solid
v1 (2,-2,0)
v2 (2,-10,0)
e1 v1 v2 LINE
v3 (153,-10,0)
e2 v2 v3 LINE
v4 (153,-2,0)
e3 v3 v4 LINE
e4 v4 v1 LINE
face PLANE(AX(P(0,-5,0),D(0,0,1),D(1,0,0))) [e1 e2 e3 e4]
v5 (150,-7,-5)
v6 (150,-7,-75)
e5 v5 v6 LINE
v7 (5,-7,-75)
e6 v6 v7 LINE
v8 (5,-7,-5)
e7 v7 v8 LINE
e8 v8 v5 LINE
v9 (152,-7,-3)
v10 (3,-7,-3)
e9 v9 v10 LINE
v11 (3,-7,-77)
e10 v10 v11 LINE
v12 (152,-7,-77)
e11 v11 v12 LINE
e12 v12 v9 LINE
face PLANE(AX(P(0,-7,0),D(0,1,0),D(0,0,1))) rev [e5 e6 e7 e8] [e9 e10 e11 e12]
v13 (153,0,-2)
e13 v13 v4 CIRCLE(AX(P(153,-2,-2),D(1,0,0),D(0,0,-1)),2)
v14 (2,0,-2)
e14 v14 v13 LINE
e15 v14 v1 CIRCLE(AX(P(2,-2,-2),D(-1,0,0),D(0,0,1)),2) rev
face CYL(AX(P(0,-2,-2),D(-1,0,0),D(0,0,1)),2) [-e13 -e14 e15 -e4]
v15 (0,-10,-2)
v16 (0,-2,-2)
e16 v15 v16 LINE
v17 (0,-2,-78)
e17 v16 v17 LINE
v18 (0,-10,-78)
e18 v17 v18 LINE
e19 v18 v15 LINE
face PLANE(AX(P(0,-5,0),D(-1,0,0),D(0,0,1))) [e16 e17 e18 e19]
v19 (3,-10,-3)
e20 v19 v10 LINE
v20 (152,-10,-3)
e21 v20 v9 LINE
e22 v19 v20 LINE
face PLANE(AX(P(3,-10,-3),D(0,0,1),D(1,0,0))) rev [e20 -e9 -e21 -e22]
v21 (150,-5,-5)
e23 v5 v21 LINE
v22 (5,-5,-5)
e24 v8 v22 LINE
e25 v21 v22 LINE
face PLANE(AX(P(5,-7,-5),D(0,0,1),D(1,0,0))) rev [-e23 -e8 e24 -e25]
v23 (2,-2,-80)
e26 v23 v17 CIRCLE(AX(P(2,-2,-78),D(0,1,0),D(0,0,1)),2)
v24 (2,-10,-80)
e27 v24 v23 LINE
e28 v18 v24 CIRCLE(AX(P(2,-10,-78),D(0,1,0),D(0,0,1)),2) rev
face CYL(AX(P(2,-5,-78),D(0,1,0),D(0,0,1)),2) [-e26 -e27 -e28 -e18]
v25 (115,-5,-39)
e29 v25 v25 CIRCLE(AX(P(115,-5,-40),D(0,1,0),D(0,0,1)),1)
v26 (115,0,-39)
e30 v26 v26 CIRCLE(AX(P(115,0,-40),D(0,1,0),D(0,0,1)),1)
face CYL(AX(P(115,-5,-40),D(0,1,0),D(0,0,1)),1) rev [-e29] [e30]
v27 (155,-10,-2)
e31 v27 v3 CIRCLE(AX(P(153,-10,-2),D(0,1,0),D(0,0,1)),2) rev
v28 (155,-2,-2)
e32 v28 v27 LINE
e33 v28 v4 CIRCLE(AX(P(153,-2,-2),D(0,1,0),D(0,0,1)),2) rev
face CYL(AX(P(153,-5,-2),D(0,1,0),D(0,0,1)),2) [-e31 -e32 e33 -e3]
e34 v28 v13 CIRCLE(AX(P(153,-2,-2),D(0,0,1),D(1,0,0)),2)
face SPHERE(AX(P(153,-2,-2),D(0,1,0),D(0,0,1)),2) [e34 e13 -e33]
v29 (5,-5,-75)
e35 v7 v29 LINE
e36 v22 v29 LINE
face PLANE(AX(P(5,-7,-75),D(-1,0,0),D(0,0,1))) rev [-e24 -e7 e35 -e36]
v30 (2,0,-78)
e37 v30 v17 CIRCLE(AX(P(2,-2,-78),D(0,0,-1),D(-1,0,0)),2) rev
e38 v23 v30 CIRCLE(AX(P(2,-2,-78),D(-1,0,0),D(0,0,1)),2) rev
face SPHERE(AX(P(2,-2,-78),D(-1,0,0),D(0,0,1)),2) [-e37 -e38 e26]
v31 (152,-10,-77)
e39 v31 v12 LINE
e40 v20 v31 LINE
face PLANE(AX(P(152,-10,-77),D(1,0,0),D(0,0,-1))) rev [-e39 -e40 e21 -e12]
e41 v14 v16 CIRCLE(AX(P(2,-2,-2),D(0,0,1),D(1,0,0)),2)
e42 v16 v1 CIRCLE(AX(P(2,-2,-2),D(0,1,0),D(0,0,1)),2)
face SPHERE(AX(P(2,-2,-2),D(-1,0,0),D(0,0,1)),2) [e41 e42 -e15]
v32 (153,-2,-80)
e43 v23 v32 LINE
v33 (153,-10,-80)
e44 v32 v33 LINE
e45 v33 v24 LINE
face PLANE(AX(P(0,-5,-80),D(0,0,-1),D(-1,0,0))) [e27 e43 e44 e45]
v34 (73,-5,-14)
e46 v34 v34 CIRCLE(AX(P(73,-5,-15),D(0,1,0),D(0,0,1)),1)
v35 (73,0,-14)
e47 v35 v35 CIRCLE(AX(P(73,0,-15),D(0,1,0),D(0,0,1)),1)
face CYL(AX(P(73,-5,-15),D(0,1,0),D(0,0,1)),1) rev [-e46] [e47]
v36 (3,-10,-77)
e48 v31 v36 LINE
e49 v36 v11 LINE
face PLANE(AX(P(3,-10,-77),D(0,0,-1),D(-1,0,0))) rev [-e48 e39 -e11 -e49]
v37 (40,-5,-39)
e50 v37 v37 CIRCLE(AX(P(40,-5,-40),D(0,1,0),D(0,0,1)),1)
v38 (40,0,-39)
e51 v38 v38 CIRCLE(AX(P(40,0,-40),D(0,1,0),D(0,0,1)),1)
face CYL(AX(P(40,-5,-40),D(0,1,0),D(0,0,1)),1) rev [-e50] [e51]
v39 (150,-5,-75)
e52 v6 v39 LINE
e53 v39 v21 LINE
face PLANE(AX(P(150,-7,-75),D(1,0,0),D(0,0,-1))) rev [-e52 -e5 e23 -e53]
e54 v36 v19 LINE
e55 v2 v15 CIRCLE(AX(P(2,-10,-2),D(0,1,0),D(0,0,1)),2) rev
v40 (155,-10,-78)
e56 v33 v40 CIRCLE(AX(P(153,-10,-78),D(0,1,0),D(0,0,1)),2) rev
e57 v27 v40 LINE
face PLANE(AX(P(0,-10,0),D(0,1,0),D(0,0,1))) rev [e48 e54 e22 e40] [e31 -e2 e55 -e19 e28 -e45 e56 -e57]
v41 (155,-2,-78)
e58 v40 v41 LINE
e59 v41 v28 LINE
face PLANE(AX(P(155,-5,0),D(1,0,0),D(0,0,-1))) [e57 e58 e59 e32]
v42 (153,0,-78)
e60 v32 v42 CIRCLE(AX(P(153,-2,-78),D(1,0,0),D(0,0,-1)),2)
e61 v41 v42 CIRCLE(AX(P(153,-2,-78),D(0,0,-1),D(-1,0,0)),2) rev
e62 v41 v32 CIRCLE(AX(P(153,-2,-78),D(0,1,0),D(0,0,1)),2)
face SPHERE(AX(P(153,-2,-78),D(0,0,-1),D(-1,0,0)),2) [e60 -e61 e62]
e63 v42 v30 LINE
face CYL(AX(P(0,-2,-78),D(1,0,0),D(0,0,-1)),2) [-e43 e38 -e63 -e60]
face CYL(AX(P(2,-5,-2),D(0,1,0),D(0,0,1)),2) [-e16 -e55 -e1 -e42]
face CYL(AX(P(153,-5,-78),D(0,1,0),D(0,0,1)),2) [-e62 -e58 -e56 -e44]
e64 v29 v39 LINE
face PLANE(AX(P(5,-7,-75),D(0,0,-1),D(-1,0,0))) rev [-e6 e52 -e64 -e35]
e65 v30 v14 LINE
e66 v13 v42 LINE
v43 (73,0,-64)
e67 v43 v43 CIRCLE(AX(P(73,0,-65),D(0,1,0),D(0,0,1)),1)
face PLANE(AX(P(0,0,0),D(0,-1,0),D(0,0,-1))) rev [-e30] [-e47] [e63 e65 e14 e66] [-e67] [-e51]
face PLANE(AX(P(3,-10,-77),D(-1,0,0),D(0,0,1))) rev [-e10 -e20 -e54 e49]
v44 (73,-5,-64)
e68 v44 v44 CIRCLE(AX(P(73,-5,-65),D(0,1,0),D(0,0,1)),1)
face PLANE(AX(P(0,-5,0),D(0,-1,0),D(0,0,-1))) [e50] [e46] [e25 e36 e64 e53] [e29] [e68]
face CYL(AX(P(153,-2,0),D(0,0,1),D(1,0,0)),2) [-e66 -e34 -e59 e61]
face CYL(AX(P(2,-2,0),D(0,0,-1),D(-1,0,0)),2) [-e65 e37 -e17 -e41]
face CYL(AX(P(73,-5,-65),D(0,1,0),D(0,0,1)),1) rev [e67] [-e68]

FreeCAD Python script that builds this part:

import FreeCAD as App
import Part
import Sketcher

V = App.Vector
Q = App.Units.Quantity


def edges_at(feature, points):
    """Names of the edges that pass closest to the given points."""
    edges = feature.Shape.Edges
    near = lambda p: min(range(len(edges)), key=lambda i: edges[i].distToShape(Part.Vertex(*p))[0])
    return sorted({f"Edge{near(p) + 1}" for p in points})

doc = App.newDocument("Part")
body = doc.addObject("PartDesign::Body", "Body")

# Sketch on XZ plane
sketch1 = doc.addObject("Sketcher::SketchObject", "Sketch")
body.addObject(sketch1)
sketch1.AttachmentSupport = (doc.XZ_Plane, [""])
sketch1.MapMode = "FlatFace"
sketch1.addGeometry(Part.LineSegment(V(0, -80, 0), V(0, 0, 0)), False)
sketch1.addGeometry(Part.LineSegment(V(0, 0, 0), V(155, 0, 0)), False)
sketch1.addGeometry(Part.LineSegment(V(155, 0, 0), V(155, -80, 0)), False)
sketch1.addGeometry(Part.LineSegment(V(155, -80, 0), V(0, -80, 0)), False)
sketch1.addGeometry(Part.Circle(V(73, -15, 0), V(0, 0, 1), 1), False)
sketch1.addGeometry(Part.Circle(V(40, -40, 0), V(0, 0, 1), 1), False)
sketch1.addGeometry(Part.Circle(V(73, -65, 0), V(0, 0, 1), 1), False)
sketch1.addGeometry(Part.Circle(V(115, -40, 0), V(0, 0, 1), 1), False)
sketch1.addConstraint(Sketcher.Constraint("Coincident", 0, 2, 1, 1))
sketch1.addConstraint(Sketcher.Constraint("Coincident", 1, 2, 2, 1))
sketch1.addConstraint(Sketcher.Constraint("Coincident", 2, 2, 3, 1))
sketch1.addConstraint(Sketcher.Constraint("Coincident", 3, 2, 0, 1))
sketch1.addConstraint(Sketcher.Constraint("Vertical", 0))
sketch1.addConstraint(Sketcher.Constraint("Horizontal", 1))
sketch1.addConstraint(Sketcher.Constraint("Vertical", 2))
sketch1.addConstraint(Sketcher.Constraint("Horizontal", 3))
sketch1.addConstraint(Sketcher.Constraint("Coincident", 0, 2, -1, 1))
sketch1.addConstraint(Sketcher.Constraint("Equal", 4, 5))
sketch1.addConstraint(Sketcher.Constraint("Equal", 5, 6))
sketch1.addConstraint(Sketcher.Constraint("Equal", 6, 7))
sketch1.addConstraint(Sketcher.Constraint("Horizontal", 5, 3, 7, 3))
sketch1.addConstraint(Sketcher.Constraint("Vertical", 4, 3, 6, 3))
sketch1.addConstraint(Sketcher.Constraint("Diameter", 4, Q("2 mm")))
sketch1.addConstraint(Sketcher.Constraint("DistanceX", 1, 1, 1, 2, Q("155 mm")))
sketch1.addConstraint(Sketcher.Constraint("DistanceY", 0, 1, 0, 2, Q("80 mm")))
sketch1.addConstraint(Sketcher.Constraint("DistanceX", -1, 1, 4, 3, Q("73 mm")))
sketch1.addConstraint(Sketcher.Constraint("DistanceY", 4, 3, -1, 1, Q("15 mm")))
sketch1.addConstraint(Sketcher.Constraint("DistanceX", -1, 1, 5, 3, Q("40 mm")))
sketch1.addConstraint(Sketcher.Constraint("DistanceY", 5, 3, -1, 1, Q("40 mm")))
sketch1.addConstraint(Sketcher.Constraint("DistanceY", 6, 3, -1, 1, Q("65 mm")))
sketch1.addConstraint(Sketcher.Constraint("DistanceX", -1, 1, 7, 3, Q("115 mm")))
pad1 = doc.addObject("PartDesign::Pad", "Pad")
body.addObject(pad1)
pad1.Profile = sketch1
pad1.Length = 5

# Sketch on XZ plane
sketch2 = doc.addObject("Sketcher::SketchObject", "Sketch001")
body.addObject(sketch2)
sketch2.AttachmentSupport = (doc.XZ_Plane, [""])
sketch2.MapMode = "FlatFace"
sketch2.addGeometry(Part.LineSegment(V(0, -80, 0), V(0, 0, 0)), False)
sketch2.addGeometry(Part.LineSegment(V(0, 0, 0), V(155, 0, 0)), False)
sketch2.addGeometry(Part.LineSegment(V(155, 0, 0), V(155, -80, 0)), False)
sketch2.addGeometry(Part.LineSegment(V(155, -80, 0), V(0, -80, 0)), False)
sketch2.addGeometry(Part.LineSegment(V(152, -3, 0), V(3, -3, 0)), False)
sketch2.addGeometry(Part.LineSegment(V(3, -3, 0), V(3, -77, 0)), False)
sketch2.addGeometry(Part.LineSegment(V(3, -77, 0), V(152, -77, 0)), False)
sketch2.addGeometry(Part.LineSegment(V(152, -77, 0), V(152, -3, 0)), False)
sketch2.addConstraint(Sketcher.Constraint("Coincident", 0, 2, 1, 1))
sketch2.addConstraint(Sketcher.Constraint("Coincident", 1, 2, 2, 1))
sketch2.addConstraint(Sketcher.Constraint("Coincident", 2, 2, 3, 1))
sketch2.addConstraint(Sketcher.Constraint("Coincident", 3, 2, 0, 1))
sketch2.addConstraint(Sketcher.Constraint("Coincident", 4, 2, 5, 1))
sketch2.addConstraint(Sketcher.Constraint("Coincident", 5, 2, 6, 1))
sketch2.addConstraint(Sketcher.Constraint("Coincident", 6, 2, 7, 1))
sketch2.addConstraint(Sketcher.Constraint("Coincident", 7, 2, 4, 1))
sketch2.addConstraint(Sketcher.Constraint("Vertical", 0))
sketch2.addConstraint(Sketcher.Constraint("Horizontal", 1))
sketch2.addConstraint(Sketcher.Constraint("Vertical", 2))
sketch2.addConstraint(Sketcher.Constraint("Horizontal", 3))
sketch2.addConstraint(Sketcher.Constraint("Horizontal", 4))
sketch2.addConstraint(Sketcher.Constraint("Vertical", 5))
sketch2.addConstraint(Sketcher.Constraint("Horizontal", 6))
sketch2.addConstraint(Sketcher.Constraint("Vertical", 7))
sketch2.addConstraint(Sketcher.Constraint("Coincident", 0, 2, -1, 1))
sketch2.addConstraint(Sketcher.Constraint("DistanceX", 1, 1, 1, 2, Q("155 mm")))
sketch2.addConstraint(Sketcher.Constraint("DistanceX", 4, 2, 4, 1, Q("149 mm")))
sketch2.addConstraint(Sketcher.Constraint("DistanceY", 0, 1, 0, 2, Q("80 mm")))
sketch2.addConstraint(Sketcher.Constraint("DistanceY", 5, 2, 5, 1, Q("74 mm")))
sketch2.addConstraint(Sketcher.Constraint("DistanceX", -1, 1, 4, 2, Q("3 mm")))
sketch2.addConstraint(Sketcher.Constraint("DistanceY", 4, 2, -1, 1, Q("3 mm")))
pad2 = doc.addObject("PartDesign::Pad", "Pad001")
body.addObject(pad2)
pad2.Profile = sketch2
pad2.Length = 10

# Sketch on XZ plane
sketch3 = doc.addObject("Sketcher::SketchObject", "Sketch002")
body.addObject(sketch3)
sketch3.AttachmentSupport = (doc.XZ_Plane, [""])
sketch3.MapMode = "FlatFace"
sketch3.addGeometry(Part.LineSegment(V(0, -80, 0), V(0, 0, 0)), False)
sketch3.addGeometry(Part.LineSegment(V(0, 0, 0), V(155, 0, 0)), False)
sketch3.addGeometry(Part.LineSegment(V(155, 0, 0), V(155, -80, 0)), False)
sketch3.addGeometry(Part.LineSegment(V(155, -80, 0), V(0, -80, 0)), False)
sketch3.addGeometry(Part.LineSegment(V(150, -5, 0), V(5, -5, 0)), False)
sketch3.addGeometry(Part.LineSegment(V(5, -5, 0), V(5, -75, 0)), False)
sketch3.addGeometry(Part.LineSegment(V(5, -75, 0), V(150, -75, 0)), False)
sketch3.addGeometry(Part.LineSegment(V(150, -75, 0), V(150, -5, 0)), False)
sketch3.addConstraint(Sketcher.Constraint("Coincident", 0, 2, 1, 1))
sketch3.addConstraint(Sketcher.Constraint("Coincident", 1, 2, 2, 1))
sketch3.addConstraint(Sketcher.Constraint("Coincident", 2, 2, 3, 1))
sketch3.addConstraint(Sketcher.Constraint("Coincident", 3, 2, 0, 1))
sketch3.addConstraint(Sketcher.Constraint("Coincident", 4, 2, 5, 1))
sketch3.addConstraint(Sketcher.Constraint("Coincident", 5, 2, 6, 1))
sketch3.addConstraint(Sketcher.Constraint("Coincident", 6, 2, 7, 1))
sketch3.addConstraint(Sketcher.Constraint("Coincident", 7, 2, 4, 1))
sketch3.addConstraint(Sketcher.Constraint("Vertical", 0))
sketch3.addConstraint(Sketcher.Constraint("Horizontal", 1))
sketch3.addConstraint(Sketcher.Constraint("Vertical", 2))
sketch3.addConstraint(Sketcher.Constraint("Horizontal", 3))
sketch3.addConstraint(Sketcher.Constraint("Horizontal", 4))
sketch3.addConstraint(Sketcher.Constraint("Vertical", 5))
sketch3.addConstraint(Sketcher.Constraint("Horizontal", 6))
sketch3.addConstraint(Sketcher.Constraint("Vertical", 7))
sketch3.addConstraint(Sketcher.Constraint("Coincident", 0, 2, -1, 1))
sketch3.addConstraint(Sketcher.Constraint("DistanceX", 1, 1, 1, 2, Q("155 mm")))
sketch3.addConstraint(Sketcher.Constraint("DistanceX", 4, 2, 4, 1, Q("145 mm")))
sketch3.addConstraint(Sketcher.Constraint("DistanceY", 0, 1, 0, 2, Q("80 mm")))
sketch3.addConstraint(Sketcher.Constraint("DistanceY", 5, 2, 5, 1, Q("70 mm")))
sketch3.addConstraint(Sketcher.Constraint("DistanceX", -1, 1, 4, 2, Q("5 mm")))
sketch3.addConstraint(Sketcher.Constraint("DistanceY", 4, 2, -1, 1, Q("5 mm")))
pad3 = doc.addObject("PartDesign::Pad", "Pad002")
body.addObject(pad3)
pad3.Profile = sketch3
pad3.Length = 7
doc.recompute()

fillet = doc.addObject("PartDesign::Fillet", "Fillet")
body.addObject(fillet)
fillet.Base = (pad3, edges_at(pad3, [
    (77.5, 0, -80),
    (155, 0, -40),
    (77.5, 0, 0),
    (0, 0, -40),
    (0, -5, -80),
    (155, -5, -80),
    (155, -5, 0),
    (0, -5, 0),
]))
fillet.Radius = 2

doc.recompute()
